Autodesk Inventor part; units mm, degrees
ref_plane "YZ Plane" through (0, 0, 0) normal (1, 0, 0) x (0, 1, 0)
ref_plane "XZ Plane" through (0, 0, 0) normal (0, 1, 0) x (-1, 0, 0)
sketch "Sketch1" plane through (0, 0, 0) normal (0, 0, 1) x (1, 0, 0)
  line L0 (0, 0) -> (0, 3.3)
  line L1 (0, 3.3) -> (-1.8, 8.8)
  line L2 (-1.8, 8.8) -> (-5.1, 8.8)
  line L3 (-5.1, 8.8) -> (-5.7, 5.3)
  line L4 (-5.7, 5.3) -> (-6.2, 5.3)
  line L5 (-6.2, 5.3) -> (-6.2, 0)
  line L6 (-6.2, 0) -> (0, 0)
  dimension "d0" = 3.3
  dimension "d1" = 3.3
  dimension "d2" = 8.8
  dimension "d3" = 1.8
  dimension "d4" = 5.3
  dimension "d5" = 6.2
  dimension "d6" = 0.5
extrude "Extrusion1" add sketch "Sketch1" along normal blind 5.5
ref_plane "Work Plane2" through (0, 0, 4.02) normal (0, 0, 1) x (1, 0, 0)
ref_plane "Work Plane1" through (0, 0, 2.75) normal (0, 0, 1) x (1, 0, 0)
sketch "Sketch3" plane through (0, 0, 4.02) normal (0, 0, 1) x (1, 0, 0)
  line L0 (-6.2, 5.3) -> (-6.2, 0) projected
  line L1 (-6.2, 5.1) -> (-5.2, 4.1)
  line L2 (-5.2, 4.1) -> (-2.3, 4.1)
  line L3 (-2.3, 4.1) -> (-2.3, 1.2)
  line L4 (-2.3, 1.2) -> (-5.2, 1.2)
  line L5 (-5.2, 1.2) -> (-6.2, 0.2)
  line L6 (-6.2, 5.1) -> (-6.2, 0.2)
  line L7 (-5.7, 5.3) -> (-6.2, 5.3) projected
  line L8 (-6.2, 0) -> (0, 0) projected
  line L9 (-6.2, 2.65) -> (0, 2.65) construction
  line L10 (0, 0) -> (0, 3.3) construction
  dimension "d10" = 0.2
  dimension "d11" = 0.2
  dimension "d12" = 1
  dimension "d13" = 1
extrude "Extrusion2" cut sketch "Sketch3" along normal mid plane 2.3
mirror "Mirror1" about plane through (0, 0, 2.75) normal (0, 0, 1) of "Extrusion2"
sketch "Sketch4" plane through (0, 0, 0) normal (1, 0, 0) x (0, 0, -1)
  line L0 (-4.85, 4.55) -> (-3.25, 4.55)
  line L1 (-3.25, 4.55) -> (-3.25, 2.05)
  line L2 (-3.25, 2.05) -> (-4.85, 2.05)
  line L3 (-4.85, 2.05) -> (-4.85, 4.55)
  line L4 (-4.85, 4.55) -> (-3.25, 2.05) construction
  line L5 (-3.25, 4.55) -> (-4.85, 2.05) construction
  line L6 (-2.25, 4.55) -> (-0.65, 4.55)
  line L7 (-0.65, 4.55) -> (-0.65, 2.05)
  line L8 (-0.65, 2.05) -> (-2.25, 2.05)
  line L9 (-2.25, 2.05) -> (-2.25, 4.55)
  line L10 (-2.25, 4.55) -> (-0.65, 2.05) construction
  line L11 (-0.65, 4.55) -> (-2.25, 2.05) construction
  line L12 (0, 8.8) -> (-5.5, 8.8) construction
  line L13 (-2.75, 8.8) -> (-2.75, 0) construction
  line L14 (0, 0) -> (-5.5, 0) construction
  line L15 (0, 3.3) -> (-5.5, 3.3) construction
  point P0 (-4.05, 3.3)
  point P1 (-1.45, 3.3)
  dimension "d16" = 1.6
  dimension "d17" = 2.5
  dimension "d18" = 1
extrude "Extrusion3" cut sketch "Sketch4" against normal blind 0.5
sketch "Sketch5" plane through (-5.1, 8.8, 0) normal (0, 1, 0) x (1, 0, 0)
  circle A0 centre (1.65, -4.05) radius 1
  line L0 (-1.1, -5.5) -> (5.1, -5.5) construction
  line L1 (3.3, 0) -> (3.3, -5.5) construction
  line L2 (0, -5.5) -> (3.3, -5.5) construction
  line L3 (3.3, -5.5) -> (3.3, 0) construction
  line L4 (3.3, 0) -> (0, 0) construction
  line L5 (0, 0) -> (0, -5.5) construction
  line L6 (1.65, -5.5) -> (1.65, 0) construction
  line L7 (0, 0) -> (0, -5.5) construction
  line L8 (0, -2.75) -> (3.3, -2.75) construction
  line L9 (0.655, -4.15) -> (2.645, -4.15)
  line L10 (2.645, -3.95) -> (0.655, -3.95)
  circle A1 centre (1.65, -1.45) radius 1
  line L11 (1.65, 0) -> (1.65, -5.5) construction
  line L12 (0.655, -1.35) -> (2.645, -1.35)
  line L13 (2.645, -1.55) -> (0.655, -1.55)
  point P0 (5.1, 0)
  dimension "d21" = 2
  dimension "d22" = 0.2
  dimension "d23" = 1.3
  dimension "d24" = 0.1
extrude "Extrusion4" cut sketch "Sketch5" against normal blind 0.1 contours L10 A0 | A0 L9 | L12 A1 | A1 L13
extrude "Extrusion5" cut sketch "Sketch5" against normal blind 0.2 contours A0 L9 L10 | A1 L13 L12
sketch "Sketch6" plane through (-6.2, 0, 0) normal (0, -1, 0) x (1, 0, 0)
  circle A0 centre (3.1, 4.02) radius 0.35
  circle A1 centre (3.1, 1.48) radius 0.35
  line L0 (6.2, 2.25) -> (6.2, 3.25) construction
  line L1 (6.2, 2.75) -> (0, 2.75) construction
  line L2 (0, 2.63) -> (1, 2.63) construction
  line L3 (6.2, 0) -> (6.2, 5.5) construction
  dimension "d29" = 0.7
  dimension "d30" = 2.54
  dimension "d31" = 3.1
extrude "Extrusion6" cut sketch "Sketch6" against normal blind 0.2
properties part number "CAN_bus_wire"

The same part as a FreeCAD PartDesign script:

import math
import FreeCAD as App
import Part
import Sketcher
from FreeCAD import Vector

doc = App.newDocument("Part")
params = doc.addObject("Spreadsheet::Sheet", "Params")
for row, (alias, value) in enumerate([
    ("sketch1_width", "6.2 mm"),
    ("sketch1_width2", "3.3 mm"),
    ("sketch1_width3", "0.5 mm"),
    ("sketch1_height", "5.3 mm"),
    ("pad1_length", "5.5 mm"),
    ("sketch2_width", "2.9 mm"),
    ("pocket1_length", "2.3 mm"),
    ("sketch3_width", "2.5 mm"),
    ("sketch3_height", "1.6 mm"),
    ("pocket2_length", "0.5 mm"),
    ("sketch4_radius", "1 mm"),
    ("pocket3_length", "0.1 mm"),
    ("sketch5_radius", "1 mm"),
    ("sketch5_height", "0.1 mm"),
    ("pocket4_length", "0.2 mm"),
    ("sketch6_diameter", "0.7 mm"),
    ("pocket5_length", "0.2 mm"),
], start=1):
    params.set(f"A{row}", alias)
    params.set(f"B{row}", "=" + value)
    params.setAlias(f"B{row}", alias)

body = doc.addObject("PartDesign::Body", "Body")

# Sketch on XY plane
sketch1 = body.newObject("Sketcher::SketchObject", "Sketch")
sketch1.AttachmentSupport = (doc.getObject("XY_Plane"), [""])
sketch1.MapMode = "FlatFace"
sketch1.addGeometry(Part.LineSegment(Vector(-6.2, 0, 0), Vector(0, 0, 0)), False)
sketch1.addGeometry(Part.LineSegment(Vector(0, 0, 0), Vector(0, 3.3, 0)), False)
sketch1.addGeometry(Part.LineSegment(Vector(0, 3.3, 0), Vector(-1.8, 8.8, 0)), False)
sketch1.addGeometry(Part.LineSegment(Vector(-1.8, 8.8, 0), Vector(-5.1, 8.8, 0)), False)
sketch1.addGeometry(Part.LineSegment(Vector(-5.1, 8.8, 0), Vector(-5.7, 5.3, 0)), False)
sketch1.addGeometry(Part.LineSegment(Vector(-5.7, 5.3, 0), Vector(-6.2, 5.3, 0)), False)
sketch1.addGeometry(Part.LineSegment(Vector(-6.2, 5.3, 0), Vector(-6.2, 0, 0)), False)
sketch1.addConstraint(Sketcher.Constraint("Coincident", 0, 2, 1, 1))
sketch1.addConstraint(Sketcher.Constraint("Coincident", 1, 2, 2, 1))
sketch1.addConstraint(Sketcher.Constraint("Coincident", 2, 2, 3, 1))
sketch1.addConstraint(Sketcher.Constraint("Coincident", 3, 2, 4, 1))
sketch1.addConstraint(Sketcher.Constraint("Coincident", 4, 2, 5, 1))
sketch1.addConstraint(Sketcher.Constraint("Coincident", 5, 2, 6, 1))
sketch1.addConstraint(Sketcher.Constraint("Coincident", 6, 2, 0, 1))
sketch1.addConstraint(Sketcher.Constraint("Horizontal", 0))
sketch1.addConstraint(Sketcher.Constraint("Vertical", 1))
sketch1.addConstraint(Sketcher.Constraint("Horizontal", 3))
sketch1.addConstraint(Sketcher.Constraint("Horizontal", 5))
sketch1.addConstraint(Sketcher.Constraint("Vertical", 6))
sketch1.addConstraint(Sketcher.Constraint("Coincident", 0, 2, -1, 1))
sketch1.addConstraint(Sketcher.Constraint("Equal", 3, 1))
sketch1.addConstraint(Sketcher.Constraint("DistanceX", 0, 1, 0, 2, 6.2))
sketch1.addConstraint(Sketcher.Constraint("DistanceX", 3, 2, 3, 1, 3.3))
sketch1.addConstraint(Sketcher.Constraint("DistanceX", 5, 2, 5, 1, 0.5))
sketch1.addConstraint(Sketcher.Constraint("DistanceY", 6, 2, 6, 1, 5.3))
sketch1.addConstraint(Sketcher.Constraint("DistanceX", 2, 2, -1, 1, 1.8))
sketch1.addConstraint(Sketcher.Constraint("DistanceY", -1, 1, 2, 2, 8.8))
sketch1.setExpression("Constraints[14]", "Params.sketch1_width")
sketch1.setExpression("Constraints[15]", "Params.sketch1_width2")
sketch1.setExpression("Constraints[16]", "Params.sketch1_width3")
sketch1.setExpression("Constraints[17]", "Params.sketch1_height")
pad1 = body.newObject("PartDesign::Pad", "Pad")
pad1.Profile = sketch1
pad1.setExpression("Length", "Params.pad1_length")

# Sketch on XY plane
sketch2 = body.newObject("Sketcher::SketchObject", "Sketch001")
sketch2.AttachmentSupport = (doc.getObject("XY_Plane"), [""])
sketch2.MapMode = "FlatFace"
sketch2.AttachmentOffset = App.Placement(Vector(0, 0, 4.02), App.Rotation())
sketch2.addGeometry(Part.LineSegment(Vector(-5.2, 4.1, 0), Vector(-6.2, 5.1, 0)), False)
sketch2.addGeometry(Part.LineSegment(Vector(-6.2, 5.1, 0), Vector(-6.2, 0.2, 0)), False)
sketch2.addGeometry(Part.LineSegment(Vector(-6.2, 0.2, 0), Vector(-5.2, 1.2, 0)), False)
sketch2.addGeometry(Part.LineSegment(Vector(-5.2, 1.2, 0), Vector(-2.3, 1.2, 0)), False)
sketch2.addGeometry(Part.LineSegment(Vector(-2.3, 1.2, 0), Vector(-2.3, 4.1, 0)), False)
sketch2.addGeometry(Part.LineSegment(Vector(-2.3, 4.1, 0), Vector(-5.2, 4.1, 0)), False)
sketch2.addConstraint(Sketcher.Constraint("Coincident", 0, 2, 1, 1))
sketch2.addConstraint(Sketcher.Constraint("Coincident", 1, 2, 2, 1))
sketch2.addConstraint(Sketcher.Constraint("Coincident", 2, 2, 3, 1))
sketch2.addConstraint(Sketcher.Constraint("Coincident", 3, 2, 4, 1))
sketch2.addConstraint(Sketcher.Constraint("Coincident", 4, 2, 5, 1))
sketch2.addConstraint(Sketcher.Constraint("Coincident", 5, 2, 0, 1))
sketch2.addConstraint(Sketcher.Constraint("Vertical", 1))
sketch2.addConstraint(Sketcher.Constraint("Horizontal", 3))
sketch2.addConstraint(Sketcher.Constraint("Vertical", 4))
sketch2.addConstraint(Sketcher.Constraint("Horizontal", 5))
sketch2.addConstraint(Sketcher.Constraint("Perpendicular", 0, 2))
sketch2.addConstraint(Sketcher.Constraint("Vertical", 2, 2, 5, 2))
sketch2.addConstraint(Sketcher.Constraint("Equal", 5, 4))
sketch2.addConstraint(Sketcher.Constraint("Equal", 0, 2))
sketch2.addConstraint(Sketcher.Constraint("DistanceX", 1, 2, 2, 2, 1.0))
sketch2.addConstraint(Sketcher.Constraint("DistanceY", -1, 1, 1, 2, 0.2))
sketch2.addConstraint(Sketcher.Constraint("DistanceX", 3, 1, 3, 2, 2.9))
sketch2.addConstraint(Sketcher.Constraint("DistanceX", 0, 2, -1, 1, 6.2))
sketch2.setExpression("Constraints[16]", "Params.sketch2_width")
pocket1 = body.newObject("PartDesign::Pocket", "Pocket")
pocket1.Profile = sketch2
pocket1.setExpression("Length", "Params.pocket1_length")
pocket1.Midplane = True
doc.recompute()

datumplane = body.newObject("PartDesign::Plane", "DatumPlane")
datumplane.AttachmentSupport = (doc.getObject("XY_Plane"), [""])
datumplane.MapMode = "FlatFace"
datumplane.AttachmentOffset = App.Placement(Vector(0, 0, 2.75), App.Rotation())
mirrored = body.newObject("PartDesign::Mirrored", "Mirrored")
mirrored.Originals = [pocket1]
mirrored.MirrorPlane = (datumplane, [""])
body.Tip = mirrored

# Sketch on YZ plane
sketch3 = body.newObject("Sketcher::SketchObject", "Sketch002")
sketch3.AttachmentSupport = (doc.getObject("YZ_Plane"), [""])
sketch3.MapMode = "FlatFace"
sketch3.addGeometry(Part.LineSegment(Vector(4.5, 3.2, 0), Vector(4.5, 4.8, 0)), False)
sketch3.addGeometry(Part.LineSegment(Vector(4.5, 4.8, 0), Vector(2, 4.8, 0)), False)
sketch3.addGeometry(Part.LineSegment(Vector(2, 4.8, 0), Vector(2, 3.2, 0)), False)
sketch3.addGeometry(Part.LineSegment(Vector(2, 3.2, 0), Vector(4.5, 3.2, 0)), False)
sketch3.addGeometry(Part.LineSegment(Vector(4.5, 0.7, 0), Vector(4.5, 2.2, 0)), False)
sketch3.addGeometry(Part.LineSegment(Vector(4.5, 2.2, 0), Vector(2, 2.2, 0)), False)
sketch3.addGeometry(Part.LineSegment(Vector(2, 2.2, 0), Vector(2, 0.7, 0)), False)
sketch3.addGeometry(Part.LineSegment(Vector(2, 0.7, 0), Vector(4.5, 0.7, 0)), False)
sketch3.addConstraint(Sketcher.Constraint("Coincident", 0, 2, 1, 1))
sketch3.addConstraint(Sketcher.Constraint("Coincident", 1, 2, 2, 1))
sketch3.addConstraint(Sketcher.Constraint("Coincident", 2, 2, 3, 1))
sketch3.addConstraint(Sketcher.Constraint("Coincident", 3, 2, 0, 1))
sketch3.addConstraint(Sketcher.Constraint("Coincident", 4, 2, 5, 1))
sketch3.addConstraint(Sketcher.Constraint("Coincident", 5, 2, 6, 1))
sketch3.addConstraint(Sketcher.Constraint("Coincident", 6, 2, 7, 1))
sketch3.addConstraint(Sketcher.Constraint("Coincident", 7, 2, 4, 1))
sketch3.addConstraint(Sketcher.Constraint("Vertical", 0))
sketch3.addConstraint(Sketcher.Constraint("Horizontal", 1))
sketch3.addConstraint(Sketcher.Constraint("Vertical", 2))
sketch3.addConstraint(Sketcher.Constraint("Horizontal", 3))
sketch3.addConstraint(Sketcher.Constraint("Vertical", 4))
sketch3.addConstraint(Sketcher.Constraint("Horizontal", 5))
sketch3.addConstraint(Sketcher.Constraint("Vertical", 6))
sketch3.addConstraint(Sketcher.Constraint("Horizontal", 7))
sketch3.addConstraint(Sketcher.Constraint("Vertical", 3, 2, 4, 2))
sketch3.addConstraint(Sketcher.Constraint("Vertical", 2, 2, 5, 2))
sketch3.addConstraint(Sketcher.Constraint("Equal", 2, 4))
sketch3.addConstraint(Sketcher.Constraint("DistanceX", 1, 2, 1, 1, 2.5))
sketch3.addConstraint(Sketcher.Constraint("DistanceY", 0, 1, 0, 2, 1.6))
sketch3.addConstraint(Sketcher.Constraint("DistanceY", 4, 2, 3, 2, 1.0))
sketch3.addConstraint(Sketcher.Constraint("DistanceX", -1, 1, 0, 2, 4.55))
sketch3.addConstraint(Sketcher.Constraint("DistanceY", -1, 1, 0, 2, 4.85))
sketch3.setExpression("Constraints[19]", "Params.sketch3_width")
sketch3.setExpression("Constraints[20]", "Params.sketch3_height")
pocket2 = body.newObject("PartDesign::Pocket", "Pocket001")
pocket2.Profile = sketch3
pocket2.setExpression("Length", "Params.pocket2_length")

# Sketch on XZ plane
sketch4 = body.newObject("Sketcher::SketchObject", "Sketch003")
sketch4.AttachmentSupport = (doc.getObject("XZ_Plane"), [""])
sketch4.MapMode = "FlatFace"
sketch4.AttachmentOffset = App.Placement(Vector(0, 0, -8.8), App.Rotation())
sketch4.addGeometry(Part.LineSegment(Vector(-4.4, 4, 0), Vector(-2.5, 4, 0)), False)
sketch4.addGeometry(Part.ArcOfCircle(Part.Circle(Vector(-3.5, 4, 0), Vector(0, 0, 1), 1), math.radians(-174), math.radians(-6)), False)
sketch4.addGeometry(Part.ArcOfCircle(Part.Circle(Vector(-3.5, 4, 0), Vector(0, 0, 1), 1), math.radians(6), math.radians(174)), False)
sketch4.addGeometry(Part.LineSegment(Vector(-4.4, 4.2, 0), Vector(-2.5, 4.2, 0)), False)
sketch4.addGeometry(Part.LineSegment(Vector(-4.4, 1.4, 0), Vector(-2.5, 1.4, 0)), False)
sketch4.addGeometry(Part.ArcOfCircle(Part.Circle(Vector(-3.5, 1.4, 0), Vector(0, 0, 1), 1), math.radians(-174), math.radians(-6)), False)
sketch4.addGeometry(Part.ArcOfCircle(Part.Circle(Vector(-3.5, 1.4, 0), Vector(0, 0, 1), 1), math.radians(6), math.radians(174)), False)
sketch4.addGeometry(Part.LineSegment(Vector(-4.4, 1.6, 0), Vector(-2.5, 1.6, 0)), False)
sketch4.addConstraint(Sketcher.Constraint("Coincident", 0, 1, 1, 1))
sketch4.addConstraint(Sketcher.Constraint("Coincident", 1, 2, 0, 2))
sketch4.addConstraint(Sketcher.Constraint("Coincident", 2, 1, 3, 2))
sketch4.addConstraint(Sketcher.Constraint("Coincident", 3, 1, 2, 2))
sketch4.addConstraint(Sketcher.Constraint("Coincident", 4, 1, 5, 1))
sketch4.addConstraint(Sketcher.Constraint("Coincident", 5, 2, 4, 2))
sketch4.addConstraint(Sketcher.Constraint("Coincident", 6, 1, 7, 2))
sketch4.addConstraint(Sketcher.Constraint("Coincident", 7, 1, 6, 2))
sketch4.addConstraint(Sketcher.Constraint("Horizontal", 0))
sketch4.addConstraint(Sketcher.Constraint("Horizontal", 3))
sketch4.addConstraint(Sketcher.Constraint("Horizontal", 4))
sketch4.addConstraint(Sketcher.Constraint("Horizontal", 7))
sketch4.addConstraint(Sketcher.Constraint("Coincident", 2, 3, 1, 3))
sketch4.addConstraint(Sketcher.Constraint("Coincident", 6, 3, 5, 3))
sketch4.addConstraint(Sketcher.Constraint("Equal", 1, 2))
sketch4.addConstraint(Sketcher.Constraint("Equal", 2, 5))
sketch4.addConstraint(Sketcher.Constraint("Equal", 5, 6))
sketch4.addConstraint(Sketcher.Constraint("Vertical", 2, 3, 5, 3))
sketch4.addConstraint(Sketcher.Constraint("Vertical", 1, 2, 2, 1))
sketch4.addConstraint(Sketcher.Constraint("Vertical", 3, 1, 4, 1))
sketch4.addConstraint(Sketcher.Constraint("Vertical", 5, 2, 6, 1))
sketch4.addConstraint(Sketcher.Constraint("Radius", 1, 1.0))
sketch4.addConstraint(Sketcher.Constraint("DistanceY", 0, 1, 1, 3, 0.1))
sketch4.addConstraint(Sketcher.Constraint("DistanceY", 5, 3, 1, 3, 2.6))
sketch4.addConstraint(Sketcher.Constraint("DistanceX", 1, 3, -1, 1, 3.45))
sketch4.addConstraint(Sketcher.Constraint("DistanceY", -1, 1, 1, 3, 4.05))
sketch4.setExpression("Constraints[21]", "Params.sketch4_radius")
pocket3 = body.newObject("PartDesign::Pocket", "Pocket002")
pocket3.Profile = sketch4
pocket3.setExpression("Length", "Params.pocket3_length")
pocket3.Reversed = True

# Sketch on XZ plane
sketch5 = body.newObject("Sketcher::SketchObject", "Sketch004")
sketch5.AttachmentSupport = (doc.getObject("XZ_Plane"), [""])
sketch5.MapMode = "FlatFace"
sketch5.AttachmentOffset = App.Placement(Vector(0, 0, -8.8), App.Rotation())
sketch5.addGeometry(Part.ArcOfCircle(Part.Circle(Vector(-3.45, 4.05, 0), Vector(0, 0, 1), 1), math.radians(-5.74), math.radians(5.74)), False)
sketch5.addGeometry(Part.LineSegment(Vector(-2.46, 3.95, 0), Vector(-4.45, 3.95, 0)), False)
sketch5.addGeometry(Part.ArcOfCircle(Part.Circle(Vector(-3.45, 4.05, 0), Vector(0, 0, 1), 1), math.radians(174.26), math.radians(185.74)), False)
sketch5.addGeometry(Part.LineSegment(Vector(-4.45, 4.15, 0), Vector(-2.46, 4.15, 0)), False)
sketch5.addGeometry(Part.ArcOfCircle(Part.Circle(Vector(-3.45, 1.45, 0), Vector(0, 0, 1), 1), math.radians(-5.74), math.radians(5.74)), False)
sketch5.addGeometry(Part.LineSegment(Vector(-2.46, 1.35, 0), Vector(-4.45, 1.35, 0)), False)
sketch5.addGeometry(Part.ArcOfCircle(Part.Circle(Vector(-3.45, 1.45, 0), Vector(0, 0, 1), 1), math.radians(174.26), math.radians(185.74)), False)
sketch5.addGeometry(Part.LineSegment(Vector(-4.45, 1.55, 0), Vector(-2.46, 1.55, 0)), False)
sketch5.addConstraint(Sketcher.Constraint("Coincident", 0, 1, 1, 1))
sketch5.addConstraint(Sketcher.Constraint("Coincident", 1, 2, 2, 2))
sketch5.addConstraint(Sketcher.Constraint("Coincident", 2, 1, 3, 1))
sketch5.addConstraint(Sketcher.Constraint("Coincident", 3, 2, 0, 2))
sketch5.addConstraint(Sketcher.Constraint("Coincident", 4, 1, 5, 1))
sketch5.addConstraint(Sketcher.Constraint("Coincident", 5, 2, 6, 2))
sketch5.addConstraint(Sketcher.Constraint("Coincident", 6, 1, 7, 1))
sketch5.addConstraint(Sketcher.Constraint("Coincident", 7, 2, 4, 2))
sketch5.addConstraint(Sketcher.Constraint("Horizontal", 1))
sketch5.addConstraint(Sketcher.Constraint("Horizontal", 3))
sketch5.addConstraint(Sketcher.Constraint("Horizontal", 5))
sketch5.addConstraint(Sketcher.Constraint("Horizontal", 7))
sketch5.addConstraint(Sketcher.Constraint("Coincident", 2, 3, 0, 3))
sketch5.addConstraint(Sketcher.Constraint("Coincident", 6, 3, 4, 3))
sketch5.addConstraint(Sketcher.Constraint("Equal", 0, 2))
sketch5.addConstraint(Sketcher.Constraint("Equal", 2, 4))
sketch5.addConstraint(Sketcher.Constraint("Equal", 4, 6))
sketch5.addConstraint(Sketcher.Constraint("Vertical", 2, 3, 4, 3))
sketch5.addConstraint(Sketcher.Constraint("Vertical", 1, 2, 2, 1))
sketch5.addConstraint(Sketcher.Constraint("Vertical", 3, 2, 4, 1))
sketch5.addConstraint(Sketcher.Constraint("Vertical", 5, 2, 6, 1))
sketch5.addConstraint(Sketcher.Constraint("Radius", 0, 1.0))
sketch5.addConstraint(Sketcher.Constraint("DistanceY", 0, 1, 0, 3, 0.1))
sketch5.addConstraint(Sketcher.Constraint("DistanceY", 4, 3, 0, 3, 2.6))
sketch5.addConstraint(Sketcher.Constraint("DistanceX", 0, 3, -1, 1, 3.45))
sketch5.addConstraint(Sketcher.Constraint("DistanceY", -1, 1, 0, 3, 4.05))
sketch5.setExpression("Constraints[21]", "Params.sketch5_radius")
sketch5.setExpression("Constraints[22]", "Params.sketch5_height")
pocket4 = body.newObject("PartDesign::Pocket", "Pocket003")
pocket4.Profile = sketch5
pocket4.setExpression("Length", "Params.pocket4_length")
pocket4.Reversed = True

# Sketch on XZ plane
sketch6 = body.newObject("Sketcher::SketchObject", "Sketch005")
sketch6.AttachmentSupport = (doc.getObject("XZ_Plane"), [""])
sketch6.MapMode = "FlatFace"
sketch6.addGeometry(Part.Circle(Vector(-3.1, 4.02, 0), Vector(0, 0, 1), 0.35), False)
sketch6.addGeometry(Part.Circle(Vector(-3.1, 1.48, 0), Vector(0, 0, 1), 0.35), False)
sketch6.addConstraint(Sketcher.Constraint("Equal", 0, 1))
sketch6.addConstraint(Sketcher.Constraint("Vertical", 0, 3, 1, 3))
sketch6.addConstraint(Sketcher.Constraint("Diameter", 0, 0.7))
sketch6.addConstraint(Sketcher.Constraint("DistanceX", 0, 3, -1, 1, 3.1))
sketch6.addConstraint(Sketcher.Constraint("DistanceY", 1, 3, 0, 3, 2.54))
sketch6.addConstraint(Sketcher.Constraint("DistanceY", -1, 1, 0, 3, 4.02))
sketch6.setExpression("Constraints[2]", "Params.sketch6_diameter")
pocket5 = body.newObject("PartDesign::Pocket", "Pocket004")
pocket5.Profile = sketch6
pocket5.setExpression("Length", "Params.pocket5_length")

doc.recompute()
